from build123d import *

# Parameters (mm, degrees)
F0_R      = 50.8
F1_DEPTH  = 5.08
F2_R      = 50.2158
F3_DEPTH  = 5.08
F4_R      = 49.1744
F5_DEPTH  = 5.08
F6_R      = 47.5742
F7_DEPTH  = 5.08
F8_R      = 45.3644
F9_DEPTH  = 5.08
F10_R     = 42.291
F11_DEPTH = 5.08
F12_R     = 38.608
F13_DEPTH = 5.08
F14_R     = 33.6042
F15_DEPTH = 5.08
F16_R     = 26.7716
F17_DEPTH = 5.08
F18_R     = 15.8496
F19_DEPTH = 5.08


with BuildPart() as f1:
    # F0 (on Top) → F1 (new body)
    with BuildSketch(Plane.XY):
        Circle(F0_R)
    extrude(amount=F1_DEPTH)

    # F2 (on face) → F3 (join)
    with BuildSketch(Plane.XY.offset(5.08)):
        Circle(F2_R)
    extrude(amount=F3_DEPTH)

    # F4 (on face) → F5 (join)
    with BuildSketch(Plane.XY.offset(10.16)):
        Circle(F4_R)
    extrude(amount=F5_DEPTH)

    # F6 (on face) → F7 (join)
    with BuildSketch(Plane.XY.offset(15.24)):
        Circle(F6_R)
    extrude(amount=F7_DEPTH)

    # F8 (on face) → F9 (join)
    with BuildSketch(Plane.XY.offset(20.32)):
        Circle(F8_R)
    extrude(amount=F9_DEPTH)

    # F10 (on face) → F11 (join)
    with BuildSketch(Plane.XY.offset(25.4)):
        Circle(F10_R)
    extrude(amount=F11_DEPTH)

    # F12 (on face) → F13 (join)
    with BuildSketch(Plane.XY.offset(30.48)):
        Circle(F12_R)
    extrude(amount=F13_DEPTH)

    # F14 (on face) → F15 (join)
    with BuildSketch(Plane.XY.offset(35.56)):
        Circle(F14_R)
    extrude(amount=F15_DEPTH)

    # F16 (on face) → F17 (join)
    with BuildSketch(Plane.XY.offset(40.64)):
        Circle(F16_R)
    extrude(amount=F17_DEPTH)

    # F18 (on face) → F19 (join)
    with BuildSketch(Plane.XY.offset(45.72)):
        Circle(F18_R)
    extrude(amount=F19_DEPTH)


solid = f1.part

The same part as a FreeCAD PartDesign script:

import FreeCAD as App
import Part
import Sketcher
Q = App.Units.Quantity

doc = App.newDocument("Part")
body = doc.addObject("PartDesign::Body", "Body")

sketch1 = body.newObject("Sketcher::SketchObject", "Sketch")
sketch1.AttachmentSupport = (doc.getObject("XY_Plane"), [""])
sketch1.MapMode = "FlatFace"
sketch1.addGeometry(Part.Circle(App.Vector(0, 0, 0), App.Vector(0, 0, 1), 51), False)
sketch1.addConstraint(Sketcher.Constraint("Coincident", 0, 3, -1, 1))
sketch1.addConstraint(Sketcher.Constraint("Diameter", 0, Q("4 in")))
pad1 = body.newObject("PartDesign::Pad", "Pad")
pad1.Profile = sketch1
pad1.Length = Q("0.2 in")

sketch2 = body.newObject("Sketcher::SketchObject", "Sketch001")
sketch2.AttachmentSupport = (doc.getObject("XY_Plane"), [""])
sketch2.MapMode = "FlatFace"
sketch2.AttachmentOffset = App.Placement(App.Vector(0, 0, 0.2 * 25.4), App.Rotation())
sketch2.addGeometry(Part.Circle(App.Vector(0, 0, 0), App.Vector(0, 0, 1), 50), False)
sketch2.addConstraint(Sketcher.Constraint("Coincident", 0, 3, -1, 1))
sketch2.addConstraint(Sketcher.Constraint("Diameter", 0, Q("3.954 in")))
pad2 = body.newObject("PartDesign::Pad", "Pad001")
pad2.Profile = sketch2
pad2.Length = Q("0.2 in")

sketch3 = body.newObject("Sketcher::SketchObject", "Sketch002")
sketch3.AttachmentSupport = (doc.getObject("XY_Plane"), [""])
sketch3.MapMode = "FlatFace"
sketch3.AttachmentOffset = App.Placement(App.Vector(0, 0, 0.4 * 25.4), App.Rotation())
sketch3.addGeometry(Part.Circle(App.Vector(0, 0, 0), App.Vector(0, 0, 1), 49), False)
sketch3.addConstraint(Sketcher.Constraint("Coincident", 0, 3, -1, 1))
sketch3.addConstraint(Sketcher.Constraint("Diameter", 0, Q("3.872 in")))
pad3 = body.newObject("PartDesign::Pad", "Pad002")
pad3.Profile = sketch3
pad3.Length = Q("0.2 in")

sketch4 = body.newObject("Sketcher::SketchObject", "Sketch003")
sketch4.AttachmentSupport = (doc.getObject("XY_Plane"), [""])
sketch4.MapMode = "FlatFace"
sketch4.AttachmentOffset = App.Placement(App.Vector(0, 0, 0.6 * 25.4), App.Rotation())
sketch4.addGeometry(Part.Circle(App.Vector(0, 0, 0), App.Vector(0, 0, 1), 48), False)
sketch4.addConstraint(Sketcher.Constraint("Coincident", 0, 3, -1, 1))
sketch4.addConstraint(Sketcher.Constraint("Diameter", 0, Q("3.746 in")))
pad4 = body.newObject("PartDesign::Pad", "Pad003")
pad4.Profile = sketch4
pad4.Length = Q("0.2 in")

sketch5 = body.newObject("Sketcher::SketchObject", "Sketch004")
sketch5.AttachmentSupport = (doc.getObject("XY_Plane"), [""])
sketch5.MapMode = "FlatFace"
sketch5.AttachmentOffset = App.Placement(App.Vector(0, 0, 0.8 * 25.4), App.Rotation())
sketch5.addGeometry(Part.Circle(App.Vector(0, 0, 0), App.Vector(0, 0, 1), 45), False)
sketch5.addConstraint(Sketcher.Constraint("Coincident", 0, 3, -1, 1))
sketch5.addConstraint(Sketcher.Constraint("Diameter", 0, Q("3.572 in")))
pad5 = body.newObject("PartDesign::Pad", "Pad004")
pad5.Profile = sketch5
pad5.Length = Q("0.2 in")

sketch6 = body.newObject("Sketcher::SketchObject", "Sketch005")
sketch6.AttachmentSupport = (doc.getObject("XY_Plane"), [""])
sketch6.MapMode = "FlatFace"
sketch6.AttachmentOffset = App.Placement(App.Vector(0, 0, 1 * 25.4), App.Rotation())
sketch6.addGeometry(Part.Circle(App.Vector(0, 0, 0), App.Vector(0, 0, 1), 42), False)
sketch6.addConstraint(Sketcher.Constraint("Coincident", 0, 3, -1, 1))
sketch6.addConstraint(Sketcher.Constraint("Diameter", 0, Q("3.33 in")))
pad6 = body.newObject("PartDesign::Pad", "Pad005")
pad6.Profile = sketch6
pad6.Length = Q("0.2 in")

sketch7 = body.newObject("Sketcher::SketchObject", "Sketch006")
sketch7.AttachmentSupport = (doc.getObject("XY_Plane"), [""])
sketch7.MapMode = "FlatFace"
sketch7.AttachmentOffset = App.Placement(App.Vector(0, 0, 1.2 * 25.4), App.Rotation())
sketch7.addGeometry(Part.Circle(App.Vector(0, 0, 0), App.Vector(0, 0, 1), 39), False)
sketch7.addConstraint(Sketcher.Constraint("Coincident", 0, 3, -1, 1))
sketch7.addConstraint(Sketcher.Constraint("Diameter", 0, Q("3.04 in")))
pad7 = body.newObject("PartDesign::Pad", "Pad006")
pad7.Profile = sketch7
pad7.Length = Q("0.2 in")

sketch8 = body.newObject("Sketcher::SketchObject", "Sketch007")
sketch8.AttachmentSupport = (doc.getObject("XY_Plane"), [""])
sketch8.MapMode = "FlatFace"
sketch8.AttachmentOffset = App.Placement(App.Vector(0, 0, 1.4 * 25.4), App.Rotation())
sketch8.addGeometry(Part.Circle(App.Vector(0, 0, 0), App.Vector(0, 0, 1), 34), False)
sketch8.addConstraint(Sketcher.Constraint("Coincident", 0, 3, -1, 1))
sketch8.addConstraint(Sketcher.Constraint("Diameter", 0, Q("2.646 in")))
pad8 = body.newObject("PartDesign::Pad", "Pad007")
pad8.Profile = sketch8
pad8.Length = Q("0.2 in")

sketch9 = body.newObject("Sketcher::SketchObject", "Sketch008")
sketch9.AttachmentSupport = (doc.getObject("XY_Plane"), [""])
sketch9.MapMode = "FlatFace"
sketch9.AttachmentOffset = App.Placement(App.Vector(0, 0, 1.6 * 25.4), App.Rotation())
sketch9.addGeometry(Part.Circle(App.Vector(0, 0, 0), App.Vector(0, 0, 1), 27), False)
sketch9.addConstraint(Sketcher.Constraint("Coincident", 0, 3, -1, 1))
sketch9.addConstraint(Sketcher.Constraint("Diameter", 0, Q("2.108 in")))
pad9 = body.newObject("PartDesign::Pad", "Pad008")
pad9.Profile = sketch9
pad9.Length = Q("0.2 in")

sketch10 = body.newObject("Sketcher::SketchObject", "Sketch009")
sketch10.AttachmentSupport = (doc.getObject("XY_Plane"), [""])
sketch10.MapMode = "FlatFace"
sketch10.AttachmentOffset = App.Placement(App.Vector(0, 0, 1.8 * 25.4), App.Rotation())
sketch10.addGeometry(Part.Circle(App.Vector(0, 0, 0), App.Vector(0, 0, 1), 16), False)
sketch10.addConstraint(Sketcher.Constraint("Coincident", 0, 3, -1, 1))
sketch10.addConstraint(Sketcher.Constraint("Diameter", 0, Q("1.248 in")))
pad10 = body.newObject("PartDesign::Pad", "Pad009")
pad10.Profile = sketch10
pad10.Length = Q("0.2 in")

doc.recompute()
